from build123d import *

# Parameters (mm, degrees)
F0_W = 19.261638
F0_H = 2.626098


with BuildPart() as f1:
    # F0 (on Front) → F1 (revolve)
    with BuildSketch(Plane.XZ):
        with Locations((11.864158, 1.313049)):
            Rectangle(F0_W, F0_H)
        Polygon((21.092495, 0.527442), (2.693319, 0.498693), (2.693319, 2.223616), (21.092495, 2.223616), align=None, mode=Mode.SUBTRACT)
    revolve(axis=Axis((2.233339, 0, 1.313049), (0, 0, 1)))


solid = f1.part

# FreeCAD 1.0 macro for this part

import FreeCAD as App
import Part
import Sketcher

V = App.Vector
Q = App.Units.Quantity

doc = App.newDocument("Part")
params = doc.addObject("Spreadsheet::Sheet", "Params")
for row, (alias, value) in enumerate([
    ("revolution_angle", "360 deg"),
], start=1):
    params.set(f"A{row}", alias)
    params.set(f"B{row}", "=" + value)
    params.setAlias(f"B{row}", alias)

body = doc.addObject("PartDesign::Body", "Body")

# Sketch on XZ plane
sketch1 = doc.addObject("Sketcher::SketchObject", "Sketch")
body.addObject(sketch1)
sketch1.AttachmentSupport = (doc.XZ_Plane, [""])
sketch1.MapMode = "FlatFace"
sketch1.addGeometry(Part.LineSegment(V(2.2, 2.6, 0), V(2.2, 0, 0)), False)
sketch1.addGeometry(Part.LineSegment(V(2.2, 0, 0), V(21.5, 0, 0)), False)
sketch1.addGeometry(Part.LineSegment(V(21.5, 0, 0), V(21.5, 2.6, 0)), False)
sketch1.addGeometry(Part.LineSegment(V(21.5, 2.6, 0), V(2.2, 2.6, 0)), False)
sketch1.addGeometry(Part.LineSegment(V(21.1, 2.2, 0), V(21.1, 0.5, 0)), False)
sketch1.addGeometry(Part.LineSegment(V(21.1, 0.5, 0), V(2.7, 0.5, 0)), False)
sketch1.addGeometry(Part.LineSegment(V(2.7, 0.5, 0), V(2.7, 2.2, 0)), False)
sketch1.addGeometry(Part.LineSegment(V(2.7, 2.2, 0), V(21.1, 2.2, 0)), False)
sketch1.addGeometry(Part.LineSegment(V(2.2, 0, 0), V(2.2, 2.6, 0)), True)  # axis
sketch1.addConstraint(Sketcher.Constraint("Coincident", 0, 2, 1, 1))
sketch1.addConstraint(Sketcher.Constraint("Coincident", 1, 2, 2, 1))
sketch1.addConstraint(Sketcher.Constraint("Coincident", 2, 2, 3, 1))
sketch1.addConstraint(Sketcher.Constraint("Coincident", 3, 2, 0, 1))
sketch1.addConstraint(Sketcher.Constraint("Coincident", 4, 2, 5, 1))
sketch1.addConstraint(Sketcher.Constraint("Coincident", 5, 2, 6, 1))
sketch1.addConstraint(Sketcher.Constraint("Coincident", 6, 2, 7, 1))
sketch1.addConstraint(Sketcher.Constraint("Coincident", 7, 2, 4, 1))
sketch1.addConstraint(Sketcher.Constraint("Vertical", 0))
sketch1.addConstraint(Sketcher.Constraint("Horizontal", 1))
sketch1.addConstraint(Sketcher.Constraint("Vertical", 2))
sketch1.addConstraint(Sketcher.Constraint("Horizontal", 3))
sketch1.addConstraint(Sketcher.Constraint("Vertical", 4))
sketch1.addConstraint(Sketcher.Constraint("Vertical", 6))
sketch1.addConstraint(Sketcher.Constraint("Horizontal", 7))
sketch1.addConstraint(Sketcher.Constraint("Vertical", 8))
sketch1.addConstraint(Sketcher.Constraint("Coincident", 8, 1, 0, 2))
sketch1.addConstraint(Sketcher.Constraint("PointOnObject", 0, 2, -1))
sketch1.addConstraint(Sketcher.Constraint("Horizontal", 2, 2, 8, 2))
sketch1.addConstraint(Sketcher.Constraint("Distance", 5, Q("18.399198 mm")))
sketch1.addConstraint(Sketcher.Constraint("DistanceX", 1, 1, 1, 2, Q("19.261638 mm")))
sketch1.addConstraint(Sketcher.Constraint("DistanceY", 0, 2, 0, 1, Q("2.626098 mm")))
sketch1.addConstraint(Sketcher.Constraint("DistanceY", 4, 2, 4, 1, Q("1.696174 mm")))
sketch1.addConstraint(Sketcher.Constraint("DistanceY", 6, 1, 6, 2, Q("1.724923 mm")))
sketch1.addConstraint(Sketcher.Constraint("DistanceX", -1, 1, 0, 2, Q("2.233339 mm")))
sketch1.addConstraint(Sketcher.Constraint("DistanceY", -1, 1, 4, 2, Q("0.527442 mm")))
sketch1.addConstraint(Sketcher.Constraint("DistanceX", -1, 1, 5, 2, Q("2.693319 mm")))
revolution = doc.addObject("PartDesign::Revolution", "Revolution")
body.addObject(revolution)
revolution.Profile = sketch1
revolution.ReferenceAxis = (sketch1, ["Axis0"])
revolution.setExpression("Angle", "Params.revolution_angle")

doc.recompute()
